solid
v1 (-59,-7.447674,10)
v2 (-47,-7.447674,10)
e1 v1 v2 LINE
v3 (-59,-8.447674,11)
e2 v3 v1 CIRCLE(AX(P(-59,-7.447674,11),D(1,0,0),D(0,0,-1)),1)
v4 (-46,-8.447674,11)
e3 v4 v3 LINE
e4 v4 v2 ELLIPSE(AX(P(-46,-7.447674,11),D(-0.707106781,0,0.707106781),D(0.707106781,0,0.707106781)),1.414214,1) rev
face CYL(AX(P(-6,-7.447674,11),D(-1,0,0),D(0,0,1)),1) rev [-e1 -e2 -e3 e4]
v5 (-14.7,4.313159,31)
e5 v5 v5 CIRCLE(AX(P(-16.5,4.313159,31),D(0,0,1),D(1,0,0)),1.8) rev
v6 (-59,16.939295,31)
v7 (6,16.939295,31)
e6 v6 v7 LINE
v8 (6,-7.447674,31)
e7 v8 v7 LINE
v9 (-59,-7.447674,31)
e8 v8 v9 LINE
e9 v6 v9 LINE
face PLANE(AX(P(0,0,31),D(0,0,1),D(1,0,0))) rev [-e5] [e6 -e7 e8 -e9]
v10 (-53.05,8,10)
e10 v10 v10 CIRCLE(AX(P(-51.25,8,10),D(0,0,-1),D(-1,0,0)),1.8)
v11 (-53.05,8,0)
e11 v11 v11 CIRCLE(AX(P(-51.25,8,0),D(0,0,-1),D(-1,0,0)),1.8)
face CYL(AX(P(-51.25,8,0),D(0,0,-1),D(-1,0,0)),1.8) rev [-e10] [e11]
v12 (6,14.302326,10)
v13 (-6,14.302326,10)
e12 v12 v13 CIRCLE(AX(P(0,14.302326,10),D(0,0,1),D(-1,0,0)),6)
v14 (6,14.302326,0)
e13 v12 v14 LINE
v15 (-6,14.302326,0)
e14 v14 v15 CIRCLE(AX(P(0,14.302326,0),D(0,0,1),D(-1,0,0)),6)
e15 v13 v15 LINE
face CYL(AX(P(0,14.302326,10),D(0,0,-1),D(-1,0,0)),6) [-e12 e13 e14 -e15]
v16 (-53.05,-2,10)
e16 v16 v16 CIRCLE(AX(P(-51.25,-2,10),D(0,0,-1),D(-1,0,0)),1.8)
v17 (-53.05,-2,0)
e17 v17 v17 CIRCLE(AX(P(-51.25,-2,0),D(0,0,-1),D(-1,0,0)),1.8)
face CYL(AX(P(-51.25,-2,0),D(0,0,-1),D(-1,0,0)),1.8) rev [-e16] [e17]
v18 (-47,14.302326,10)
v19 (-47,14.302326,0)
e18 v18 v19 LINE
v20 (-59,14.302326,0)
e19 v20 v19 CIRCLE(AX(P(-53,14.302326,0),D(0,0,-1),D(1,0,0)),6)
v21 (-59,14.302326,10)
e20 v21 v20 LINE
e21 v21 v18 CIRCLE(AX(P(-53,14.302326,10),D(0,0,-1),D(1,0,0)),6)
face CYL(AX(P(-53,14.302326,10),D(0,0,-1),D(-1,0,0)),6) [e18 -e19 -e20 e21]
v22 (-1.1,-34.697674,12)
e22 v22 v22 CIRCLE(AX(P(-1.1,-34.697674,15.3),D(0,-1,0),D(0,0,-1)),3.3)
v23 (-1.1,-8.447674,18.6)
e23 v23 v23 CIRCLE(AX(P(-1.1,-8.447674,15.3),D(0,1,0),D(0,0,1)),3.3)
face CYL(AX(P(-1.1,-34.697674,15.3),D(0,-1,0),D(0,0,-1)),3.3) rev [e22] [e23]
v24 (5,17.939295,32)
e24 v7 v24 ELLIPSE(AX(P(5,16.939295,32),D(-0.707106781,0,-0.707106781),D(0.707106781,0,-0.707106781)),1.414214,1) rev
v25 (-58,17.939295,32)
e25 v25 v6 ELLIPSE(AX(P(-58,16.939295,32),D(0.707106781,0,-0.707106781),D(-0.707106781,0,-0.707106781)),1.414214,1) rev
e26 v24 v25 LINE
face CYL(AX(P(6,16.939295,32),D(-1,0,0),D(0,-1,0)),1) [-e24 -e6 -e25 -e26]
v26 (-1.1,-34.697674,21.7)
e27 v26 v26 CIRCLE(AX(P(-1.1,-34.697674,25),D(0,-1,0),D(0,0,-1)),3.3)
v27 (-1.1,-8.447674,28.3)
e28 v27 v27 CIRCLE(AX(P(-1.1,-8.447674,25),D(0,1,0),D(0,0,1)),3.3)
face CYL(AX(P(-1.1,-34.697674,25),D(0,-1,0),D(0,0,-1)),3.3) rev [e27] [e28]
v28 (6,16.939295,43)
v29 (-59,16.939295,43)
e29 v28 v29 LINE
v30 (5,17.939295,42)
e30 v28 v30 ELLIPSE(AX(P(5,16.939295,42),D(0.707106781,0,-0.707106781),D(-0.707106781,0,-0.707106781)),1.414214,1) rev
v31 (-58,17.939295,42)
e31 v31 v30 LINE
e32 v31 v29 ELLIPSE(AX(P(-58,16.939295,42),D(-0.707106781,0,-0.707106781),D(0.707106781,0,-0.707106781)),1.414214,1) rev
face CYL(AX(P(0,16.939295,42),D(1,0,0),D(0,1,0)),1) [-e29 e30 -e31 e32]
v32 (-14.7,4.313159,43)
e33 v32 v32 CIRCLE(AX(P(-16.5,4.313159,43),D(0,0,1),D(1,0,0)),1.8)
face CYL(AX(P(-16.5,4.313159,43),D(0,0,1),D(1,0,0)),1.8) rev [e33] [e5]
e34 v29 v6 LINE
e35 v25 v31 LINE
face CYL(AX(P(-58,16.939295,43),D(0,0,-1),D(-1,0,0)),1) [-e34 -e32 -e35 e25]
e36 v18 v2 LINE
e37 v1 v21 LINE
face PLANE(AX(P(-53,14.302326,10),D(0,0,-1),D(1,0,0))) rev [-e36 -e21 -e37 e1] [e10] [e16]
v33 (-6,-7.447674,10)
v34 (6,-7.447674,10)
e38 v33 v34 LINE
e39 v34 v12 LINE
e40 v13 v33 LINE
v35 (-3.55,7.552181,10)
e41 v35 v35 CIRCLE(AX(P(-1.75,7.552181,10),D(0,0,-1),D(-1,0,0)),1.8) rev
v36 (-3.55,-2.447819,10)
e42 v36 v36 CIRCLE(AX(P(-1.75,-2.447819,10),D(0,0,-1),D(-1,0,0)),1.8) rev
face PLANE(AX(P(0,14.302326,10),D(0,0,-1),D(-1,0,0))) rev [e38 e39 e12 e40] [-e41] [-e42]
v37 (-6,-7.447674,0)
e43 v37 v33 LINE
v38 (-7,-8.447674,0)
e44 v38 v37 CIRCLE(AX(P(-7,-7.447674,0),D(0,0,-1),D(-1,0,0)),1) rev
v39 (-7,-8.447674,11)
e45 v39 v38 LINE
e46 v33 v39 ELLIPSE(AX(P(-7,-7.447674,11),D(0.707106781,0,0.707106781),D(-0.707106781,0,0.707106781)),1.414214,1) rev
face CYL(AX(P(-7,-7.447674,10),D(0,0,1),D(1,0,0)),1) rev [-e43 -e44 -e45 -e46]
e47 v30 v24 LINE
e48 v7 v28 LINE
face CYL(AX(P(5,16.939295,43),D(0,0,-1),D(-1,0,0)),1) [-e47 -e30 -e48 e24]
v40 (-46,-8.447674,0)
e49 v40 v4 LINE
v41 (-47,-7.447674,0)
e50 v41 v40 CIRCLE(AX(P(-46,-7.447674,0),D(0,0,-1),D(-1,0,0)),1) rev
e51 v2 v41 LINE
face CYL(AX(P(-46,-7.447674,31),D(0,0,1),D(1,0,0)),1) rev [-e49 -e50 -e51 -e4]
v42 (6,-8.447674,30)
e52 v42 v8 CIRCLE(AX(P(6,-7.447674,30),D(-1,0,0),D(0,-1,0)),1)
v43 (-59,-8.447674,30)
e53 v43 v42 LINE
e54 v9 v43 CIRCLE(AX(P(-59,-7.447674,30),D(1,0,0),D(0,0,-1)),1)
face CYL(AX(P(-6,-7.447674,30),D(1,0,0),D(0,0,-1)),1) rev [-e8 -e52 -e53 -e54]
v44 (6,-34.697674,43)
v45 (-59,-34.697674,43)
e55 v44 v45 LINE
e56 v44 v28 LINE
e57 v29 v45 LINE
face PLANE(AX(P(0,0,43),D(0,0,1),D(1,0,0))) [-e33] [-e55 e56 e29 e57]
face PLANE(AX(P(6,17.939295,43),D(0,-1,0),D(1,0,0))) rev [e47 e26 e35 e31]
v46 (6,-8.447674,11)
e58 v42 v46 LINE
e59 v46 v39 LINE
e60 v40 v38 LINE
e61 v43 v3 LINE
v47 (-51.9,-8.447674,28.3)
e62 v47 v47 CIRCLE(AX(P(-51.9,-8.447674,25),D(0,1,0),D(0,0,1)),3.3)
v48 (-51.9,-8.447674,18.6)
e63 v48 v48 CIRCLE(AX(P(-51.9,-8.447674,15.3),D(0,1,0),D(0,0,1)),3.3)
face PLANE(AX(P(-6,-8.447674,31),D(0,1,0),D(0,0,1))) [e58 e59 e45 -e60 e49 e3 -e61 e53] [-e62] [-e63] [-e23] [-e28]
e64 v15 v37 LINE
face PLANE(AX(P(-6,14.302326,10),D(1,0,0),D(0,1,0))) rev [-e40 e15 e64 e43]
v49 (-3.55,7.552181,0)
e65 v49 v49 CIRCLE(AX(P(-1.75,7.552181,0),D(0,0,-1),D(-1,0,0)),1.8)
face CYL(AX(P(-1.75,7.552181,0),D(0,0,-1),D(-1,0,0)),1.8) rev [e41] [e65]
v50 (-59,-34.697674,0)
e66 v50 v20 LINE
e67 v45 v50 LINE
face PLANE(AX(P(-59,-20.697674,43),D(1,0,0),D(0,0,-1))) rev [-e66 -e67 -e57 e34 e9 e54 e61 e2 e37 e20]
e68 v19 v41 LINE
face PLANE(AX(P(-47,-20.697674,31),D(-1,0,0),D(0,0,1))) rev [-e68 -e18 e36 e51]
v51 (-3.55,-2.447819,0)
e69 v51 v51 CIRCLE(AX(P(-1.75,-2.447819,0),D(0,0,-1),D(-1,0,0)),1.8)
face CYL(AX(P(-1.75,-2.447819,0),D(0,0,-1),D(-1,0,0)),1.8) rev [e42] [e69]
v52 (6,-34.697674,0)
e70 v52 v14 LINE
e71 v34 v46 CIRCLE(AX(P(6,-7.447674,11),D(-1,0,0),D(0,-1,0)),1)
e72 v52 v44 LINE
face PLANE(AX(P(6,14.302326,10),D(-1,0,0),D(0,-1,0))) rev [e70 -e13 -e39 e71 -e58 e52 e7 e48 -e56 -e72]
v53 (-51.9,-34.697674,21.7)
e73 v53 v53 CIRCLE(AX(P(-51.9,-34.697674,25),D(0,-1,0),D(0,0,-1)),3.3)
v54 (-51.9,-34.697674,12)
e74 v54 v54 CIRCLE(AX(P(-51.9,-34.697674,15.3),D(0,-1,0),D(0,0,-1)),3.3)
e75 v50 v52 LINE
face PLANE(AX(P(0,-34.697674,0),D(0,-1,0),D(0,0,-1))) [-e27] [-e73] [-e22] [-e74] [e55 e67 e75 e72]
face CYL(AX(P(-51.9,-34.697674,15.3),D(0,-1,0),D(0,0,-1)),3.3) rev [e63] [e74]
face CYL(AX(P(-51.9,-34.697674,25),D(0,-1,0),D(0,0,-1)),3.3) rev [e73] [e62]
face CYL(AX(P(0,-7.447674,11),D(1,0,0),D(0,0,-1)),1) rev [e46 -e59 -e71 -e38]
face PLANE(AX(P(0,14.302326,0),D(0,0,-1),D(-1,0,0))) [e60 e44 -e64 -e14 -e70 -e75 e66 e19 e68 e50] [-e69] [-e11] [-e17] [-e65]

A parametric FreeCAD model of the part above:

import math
import FreeCAD as App
import Part
import Sketcher
Q = App.Units.Quantity


def edges_at(feature, points):
    """Names of the edges that pass closest to the given points."""
    edges = feature.Shape.Edges
    near = lambda p: min(range(len(edges)), key=lambda i: edges[i].distToShape(Part.Vertex(*p))[0])
    return sorted({f"Edge{near(p) + 1}" for p in points})


def add_polygon(sketch, points):
    """Adds a closed chain of lines whose ends are joined by coincident constraints."""
    first, n = sketch.GeometryCount, len(points)
    for a, b in zip(points, points[1:] + points[:1]):
        sketch.addGeometry(Part.LineSegment(App.Vector(*a, 0), App.Vector(*b, 0)), False)
    for i in range(n):
        sketch.addConstraint(Sketcher.Constraint("Coincident", first + i, 2, first + (i + 1) % n, 1))

doc = App.newDocument("Part")
body = doc.addObject("PartDesign::Body", "Body")

sketch1 = body.newObject("Sketcher::SketchObject", "Sketch")
sketch1.AttachmentSupport = (doc.getObject("XY_Plane"), [""])
sketch1.MapMode = "FlatFace"
sketch1.addGeometry([
    Part.LineSegment(App.Vector(-6, 14.302326, 0), App.Vector(-6, -20.697674, 0)),
    Part.LineSegment(App.Vector(-6, -20.697674, 0), App.Vector(6, -20.697674, 0)),
    Part.LineSegment(App.Vector(6, -20.697674, 0), App.Vector(6, 14.302326, 0)),
    Part.ArcOfCircle(Part.Circle(App.Vector(0, 14.302326, 0), App.Vector(0, 0, 1), 6), math.radians(0), math.radians(180)),
], False)
sketch1.addConstraint([
    Sketcher.Constraint("Coincident", 0, 2, 1, 1),
    Sketcher.Constraint("Coincident", 1, 2, 2, 1),
    Sketcher.Constraint("Tangent", 2, 2, 3, 1),
    Sketcher.Constraint("Tangent", 3, 2, 0, 1),
    Sketcher.Constraint("Vertical", 0),
    Sketcher.Constraint("Horizontal", 1),
    Sketcher.Constraint("Vertical", 2),
    Sketcher.Constraint("PointOnObject", 3, 3, -2),
    Sketcher.Constraint("Radius", 3, Q("6 mm")),
    Sketcher.Constraint("DistanceY", 0, 2, 0, 1, Q("35 mm")),
    Sketcher.Constraint("DistanceY", -1, 1, 3, 3, Q("14.302326 mm")),
])
pad1 = body.newObject("PartDesign::Pad", "Pad")
pad1.Profile = sketch1
pad1.Length = 10

sketch2 = body.newObject("Sketcher::SketchObject", "Sketch001")
sketch2.AttachmentSupport = (doc.getObject("XY_Plane"), [""])
sketch2.MapMode = "FlatFace"
sketch2.AttachmentOffset = App.Placement(App.Vector(0, 0, 10), App.Rotation())
add_polygon(sketch2, [(-6, -8.447674), (-6, -20.697674), (6, -20.697674), (6, -8.447674)])
sketch2.addConstraint([
    Sketcher.Constraint("Vertical", 0),
    Sketcher.Constraint("Horizontal", 1),
    Sketcher.Constraint("Vertical", 2),
    Sketcher.Constraint("Horizontal", 3),
    Sketcher.Constraint("DistanceX", 1, 1, 1, 2, Q("12 mm")),
    Sketcher.Constraint("DistanceX", 0, 2, -1, 1, Q("6 mm")),
    Sketcher.Constraint("DistanceY", 0, 2, 0, 1, Q("12.25 mm")),
    Sketcher.Constraint("DistanceY", 0, 2, -1, 1, Q("20.697674 mm")),
])
pad2 = body.newObject("PartDesign::Pad", "Pad001")
pad2.Profile = sketch2
pad2.Length = 21

sketch3 = body.newObject("Sketcher::SketchObject", "Sketch002")
sketch3.AttachmentSupport = (doc.getObject("XY_Plane"), [""])
sketch3.MapMode = "FlatFace"
sketch3.AttachmentOffset = App.Placement(App.Vector(0, 0, 31), App.Rotation())
add_polygon(sketch3, [(-59, 17.939295), (-59, -20.697674), (6, -20.697674), (6, 17.939295)])
sketch3.addConstraint([
    Sketcher.Constraint("Vertical", 0),
    Sketcher.Constraint("Horizontal", 1),
    Sketcher.Constraint("Vertical", 2),
    Sketcher.Constraint("Horizontal", 3),
    Sketcher.Constraint("DistanceX", 1, 1, 1, 2, Q("65 mm")),
    Sketcher.Constraint("DistanceX", 0, 2, -1, 1, Q("59 mm")),
    Sketcher.Constraint("DistanceY", 0, 2, 0, 1, Q("38.636969 mm")),
    Sketcher.Constraint("DistanceY", 0, 2, -1, 1, Q("20.697674 mm")),
])
pad3 = body.newObject("PartDesign::Pad", "Pad002")
pad3.Profile = sketch3
pad3.Length = 12
doc.recompute()

datumplane = body.newObject("PartDesign::Plane", "DatumPlane")
datumplane.AttachmentSupport = (doc.getObject("YZ_Plane"), [""])
datumplane.MapMode = "FlatFace"
datumplane.AttachmentOffset = App.Placement(App.Vector(0, 0, -26.5), App.Rotation())
mirrored = body.newObject("PartDesign::Mirrored", "Mirrored")
mirrored.Originals = [pad2]
mirrored.MirrorPlane = (datumplane, [""])
body.Tip = mirrored
doc.recompute()

datumplane2 = body.newObject("PartDesign::Plane", "DatumPlane001")
datumplane2.AttachmentSupport = (doc.getObject("YZ_Plane"), [""])
datumplane2.MapMode = "FlatFace"
datumplane2.AttachmentOffset = App.Placement(App.Vector(0, 0, -26.5), App.Rotation())
mirrored2 = body.newObject("PartDesign::Mirrored", "Mirrored001")
mirrored2.Originals = [pad1]
mirrored2.MirrorPlane = (datumplane2, [""])
body.Tip = mirrored2

sketch4 = body.newObject("Sketcher::SketchObject", "Sketch003")
sketch4.AttachmentSupport = (doc.getObject("XY_Plane"), [""])
sketch4.MapMode = "FlatFace"
sketch4.addGeometry([
    Part.Circle(App.Vector(-1.75, 7.552181, 0), App.Vector(0, 0, 1), 1.8),
    Part.Circle(App.Vector(-1.75, -2.447819, 0), App.Vector(0, 0, 1), 1.8),
    Part.Circle(App.Vector(-51.25, 8, 0), App.Vector(0, 0, 1), 1.8),
    Part.Circle(App.Vector(-51.25, -2, 0), App.Vector(0, 0, 1), 1.8),
], False)
sketch4.addConstraint([
    Sketcher.Constraint("Equal", 0, 1),
    Sketcher.Constraint("Equal", 1, 2),
    Sketcher.Constraint("Equal", 2, 3),
    Sketcher.Constraint("Vertical", 0, 3, 1, 3),
    Sketcher.Constraint("Vertical", 2, 3, 3, 3),
    Sketcher.Constraint("Diameter", 0, Q("3.6 mm")),
    Sketcher.Constraint("DistanceY", -1, 1, 2, 3, Q("8 mm")),
    Sketcher.Constraint("DistanceY", 3, 3, -1, 1, Q("2 mm")),
    Sketcher.Constraint("DistanceY", 1, 3, 0, 3, Q("10 mm")),
    Sketcher.Constraint("DistanceX", 2, 3, 0, 3, Q("49.5 mm")),
    Sketcher.Constraint("DistanceX", 0, 3, -1, 1, Q("1.75 mm")),
    Sketcher.Constraint("DistanceY", -1, 1, 0, 3, Q("7.552181 mm")),
])
doc.recompute()
hole = body.newObject("PartDesign::Hole", "Hole")
hole.Profile = sketch4
hole.ThreadType = "None"
hole.Diameter = 3.6
hole.DepthType = "Dimension"
hole.Depth = 10
hole.DrillPoint = "Angled"
hole.DrillPointAngle = 118
hole.Reversed = True

sketch5 = body.newObject("Sketcher::SketchObject", "Sketch004")
sketch5.AttachmentSupport = (doc.getObject("XY_Plane"), [""])
sketch5.MapMode = "FlatFace"
sketch5.AttachmentOffset = App.Placement(App.Vector(0, 0, 43), App.Rotation())
sketch5.addGeometry(Part.Circle(App.Vector(-16.5, 4.313159, 0), App.Vector(0, 0, 1), 1.8), False)
sketch5.addConstraint([
    Sketcher.Constraint("Diameter", 0, Q("3.6 mm")),
    Sketcher.Constraint("DistanceX", 0, 3, -1, 1, Q("16.5 mm")),
    Sketcher.Constraint("DistanceY", -1, 1, 0, 3, Q("4.313159 mm")),
])
doc.recompute()
hole2 = body.newObject("PartDesign::Hole", "Hole001")
hole2.Profile = sketch5
hole2.ThreadType = "None"
hole2.Diameter = 3.6
hole2.DepthType = "Dimension"
hole2.Depth = 12
hole2.DrillPoint = "Angled"
hole2.DrillPointAngle = 118

sketch6 = body.newObject("Sketcher::SketchObject", "Sketch005")
sketch6.AttachmentSupport = (doc.getObject("XY_Plane"), [""])
sketch6.MapMode = "FlatFace"
sketch6.AttachmentOffset = App.Placement(App.Vector(0, 0, 31), App.Rotation())
add_polygon(sketch6, [(-6, -8.447674), (-6, -20.697674), (-47, -20.697674), (-47, -8.447674)])
sketch6.addConstraint([
    Sketcher.Constraint("Vertical", 0),
    Sketcher.Constraint("Horizontal", 1),
    Sketcher.Constraint("Vertical", 2),
    Sketcher.Constraint("Horizontal", 3),
    Sketcher.Constraint("DistanceX", 1, 2, 1, 1, Q("41 mm")),
    Sketcher.Constraint("DistanceX", 0, 2, -1, 1, Q("6 mm")),
    Sketcher.Constraint("DistanceY", 0, 2, 0, 1, Q("12.25 mm")),
    Sketcher.Constraint("DistanceY", 0, 2, -1, 1, Q("20.697674 mm")),
])
pad4 = body.newObject("PartDesign::Pad", "Pad003")
pad4.Profile = sketch6
pad4.Length = 31
pad4.Reversed = True

sketch7 = body.newObject("Sketcher::SketchObject", "Sketch006")
sketch7.AttachmentSupport = (doc.getObject("XZ_Plane"), [""])
sketch7.MapMode = "FlatFace"
sketch7.AttachmentOffset = App.Placement(App.Vector(0, 0, 20.697674), App.Rotation())
add_polygon(sketch7, [(-59, 43), (-59, 0), (6, 0), (6, 43)])
sketch7.addConstraint([
    Sketcher.Constraint("Vertical", 0),
    Sketcher.Constraint("Horizontal", 1),
    Sketcher.Constraint("Vertical", 2),
    Sketcher.Constraint("Horizontal", 3),
    Sketcher.Constraint("PointOnObject", 0, 2, -1),
    Sketcher.Constraint("DistanceX", 1, 1, 1, 2, Q("65 mm")),
    Sketcher.Constraint("DistanceY", 0, 2, 0, 1, Q("43 mm")),
    Sketcher.Constraint("DistanceX", 0, 2, -1, 1, Q("59 mm")),
])
pad5 = body.newObject("PartDesign::Pad", "Pad004")
pad5.Profile = sketch7
pad5.Length = 14

sketch8 = body.newObject("Sketcher::SketchObject", "Sketch007")
sketch8.AttachmentSupport = (doc.getObject("XZ_Plane"), [""])
sketch8.MapMode = "FlatFace"
sketch8.AttachmentOffset = App.Placement(App.Vector(0, 0, 34.697674), App.Rotation())
sketch8.addGeometry([
    Part.Circle(App.Vector(-1.1, 15.3, 0), App.Vector(0, 0, 1), 3.3),
    Part.Circle(App.Vector(-1.1, 25, 0), App.Vector(0, 0, 1), 3.3),
    Part.Circle(App.Vector(-51.9, 15.3, 0), App.Vector(0, 0, 1), 3.3),
    Part.Circle(App.Vector(-51.9, 25, 0), App.Vector(0, 0, 1), 3.3),
], False)
sketch8.addConstraint([
    Sketcher.Constraint("Equal", 0, 1),
    Sketcher.Constraint("Equal", 1, 2),
    Sketcher.Constraint("Equal", 2, 3),
    Sketcher.Constraint("Horizontal", 0, 3, 2, 3),
    Sketcher.Constraint("Horizontal", 1, 3, 3, 3),
    Sketcher.Constraint("Vertical", 0, 3, 1, 3),
    Sketcher.Constraint("Vertical", 2, 3, 3, 3),
    Sketcher.Constraint("Diameter", 0, Q("6.6 mm")),
    Sketcher.Constraint("DistanceY", -1, 1, 1, 3, Q("25 mm")),
    Sketcher.Constraint("DistanceX", 0, 3, -1, 1, Q("1.1 mm")),
    Sketcher.Constraint("DistanceY", -1, 1, 0, 3, Q("15.3 mm")),
    Sketcher.Constraint("DistanceX", 2, 3, -1, 1, Q("51.9 mm")),
])
doc.recompute()
hole3 = body.newObject("PartDesign::Hole", "Hole002")
hole3.Profile = sketch8
hole3.ThreadType = "None"
hole3.Diameter = 6.6
hole3.DepthType = "ThroughAll"
doc.recompute()

fillet = body.newObject("PartDesign::Fillet", "Fillet")
fillet.Base = (hole3, edges_at(hole3, [
    (-26.5, -8.448, 31),
    (0, -8.448, 10),
    (-26.5, 17.939, 31),
    (6, 17.939, 37),
    (-59, 17.939, 37),
    (-26.5, 17.939, 43),
    (-53, -8.448, 10),
    (-6, -8.448, 5),
    (-47, -8.448, 5),
]))
fillet.Radius = 1

doc.recompute()
